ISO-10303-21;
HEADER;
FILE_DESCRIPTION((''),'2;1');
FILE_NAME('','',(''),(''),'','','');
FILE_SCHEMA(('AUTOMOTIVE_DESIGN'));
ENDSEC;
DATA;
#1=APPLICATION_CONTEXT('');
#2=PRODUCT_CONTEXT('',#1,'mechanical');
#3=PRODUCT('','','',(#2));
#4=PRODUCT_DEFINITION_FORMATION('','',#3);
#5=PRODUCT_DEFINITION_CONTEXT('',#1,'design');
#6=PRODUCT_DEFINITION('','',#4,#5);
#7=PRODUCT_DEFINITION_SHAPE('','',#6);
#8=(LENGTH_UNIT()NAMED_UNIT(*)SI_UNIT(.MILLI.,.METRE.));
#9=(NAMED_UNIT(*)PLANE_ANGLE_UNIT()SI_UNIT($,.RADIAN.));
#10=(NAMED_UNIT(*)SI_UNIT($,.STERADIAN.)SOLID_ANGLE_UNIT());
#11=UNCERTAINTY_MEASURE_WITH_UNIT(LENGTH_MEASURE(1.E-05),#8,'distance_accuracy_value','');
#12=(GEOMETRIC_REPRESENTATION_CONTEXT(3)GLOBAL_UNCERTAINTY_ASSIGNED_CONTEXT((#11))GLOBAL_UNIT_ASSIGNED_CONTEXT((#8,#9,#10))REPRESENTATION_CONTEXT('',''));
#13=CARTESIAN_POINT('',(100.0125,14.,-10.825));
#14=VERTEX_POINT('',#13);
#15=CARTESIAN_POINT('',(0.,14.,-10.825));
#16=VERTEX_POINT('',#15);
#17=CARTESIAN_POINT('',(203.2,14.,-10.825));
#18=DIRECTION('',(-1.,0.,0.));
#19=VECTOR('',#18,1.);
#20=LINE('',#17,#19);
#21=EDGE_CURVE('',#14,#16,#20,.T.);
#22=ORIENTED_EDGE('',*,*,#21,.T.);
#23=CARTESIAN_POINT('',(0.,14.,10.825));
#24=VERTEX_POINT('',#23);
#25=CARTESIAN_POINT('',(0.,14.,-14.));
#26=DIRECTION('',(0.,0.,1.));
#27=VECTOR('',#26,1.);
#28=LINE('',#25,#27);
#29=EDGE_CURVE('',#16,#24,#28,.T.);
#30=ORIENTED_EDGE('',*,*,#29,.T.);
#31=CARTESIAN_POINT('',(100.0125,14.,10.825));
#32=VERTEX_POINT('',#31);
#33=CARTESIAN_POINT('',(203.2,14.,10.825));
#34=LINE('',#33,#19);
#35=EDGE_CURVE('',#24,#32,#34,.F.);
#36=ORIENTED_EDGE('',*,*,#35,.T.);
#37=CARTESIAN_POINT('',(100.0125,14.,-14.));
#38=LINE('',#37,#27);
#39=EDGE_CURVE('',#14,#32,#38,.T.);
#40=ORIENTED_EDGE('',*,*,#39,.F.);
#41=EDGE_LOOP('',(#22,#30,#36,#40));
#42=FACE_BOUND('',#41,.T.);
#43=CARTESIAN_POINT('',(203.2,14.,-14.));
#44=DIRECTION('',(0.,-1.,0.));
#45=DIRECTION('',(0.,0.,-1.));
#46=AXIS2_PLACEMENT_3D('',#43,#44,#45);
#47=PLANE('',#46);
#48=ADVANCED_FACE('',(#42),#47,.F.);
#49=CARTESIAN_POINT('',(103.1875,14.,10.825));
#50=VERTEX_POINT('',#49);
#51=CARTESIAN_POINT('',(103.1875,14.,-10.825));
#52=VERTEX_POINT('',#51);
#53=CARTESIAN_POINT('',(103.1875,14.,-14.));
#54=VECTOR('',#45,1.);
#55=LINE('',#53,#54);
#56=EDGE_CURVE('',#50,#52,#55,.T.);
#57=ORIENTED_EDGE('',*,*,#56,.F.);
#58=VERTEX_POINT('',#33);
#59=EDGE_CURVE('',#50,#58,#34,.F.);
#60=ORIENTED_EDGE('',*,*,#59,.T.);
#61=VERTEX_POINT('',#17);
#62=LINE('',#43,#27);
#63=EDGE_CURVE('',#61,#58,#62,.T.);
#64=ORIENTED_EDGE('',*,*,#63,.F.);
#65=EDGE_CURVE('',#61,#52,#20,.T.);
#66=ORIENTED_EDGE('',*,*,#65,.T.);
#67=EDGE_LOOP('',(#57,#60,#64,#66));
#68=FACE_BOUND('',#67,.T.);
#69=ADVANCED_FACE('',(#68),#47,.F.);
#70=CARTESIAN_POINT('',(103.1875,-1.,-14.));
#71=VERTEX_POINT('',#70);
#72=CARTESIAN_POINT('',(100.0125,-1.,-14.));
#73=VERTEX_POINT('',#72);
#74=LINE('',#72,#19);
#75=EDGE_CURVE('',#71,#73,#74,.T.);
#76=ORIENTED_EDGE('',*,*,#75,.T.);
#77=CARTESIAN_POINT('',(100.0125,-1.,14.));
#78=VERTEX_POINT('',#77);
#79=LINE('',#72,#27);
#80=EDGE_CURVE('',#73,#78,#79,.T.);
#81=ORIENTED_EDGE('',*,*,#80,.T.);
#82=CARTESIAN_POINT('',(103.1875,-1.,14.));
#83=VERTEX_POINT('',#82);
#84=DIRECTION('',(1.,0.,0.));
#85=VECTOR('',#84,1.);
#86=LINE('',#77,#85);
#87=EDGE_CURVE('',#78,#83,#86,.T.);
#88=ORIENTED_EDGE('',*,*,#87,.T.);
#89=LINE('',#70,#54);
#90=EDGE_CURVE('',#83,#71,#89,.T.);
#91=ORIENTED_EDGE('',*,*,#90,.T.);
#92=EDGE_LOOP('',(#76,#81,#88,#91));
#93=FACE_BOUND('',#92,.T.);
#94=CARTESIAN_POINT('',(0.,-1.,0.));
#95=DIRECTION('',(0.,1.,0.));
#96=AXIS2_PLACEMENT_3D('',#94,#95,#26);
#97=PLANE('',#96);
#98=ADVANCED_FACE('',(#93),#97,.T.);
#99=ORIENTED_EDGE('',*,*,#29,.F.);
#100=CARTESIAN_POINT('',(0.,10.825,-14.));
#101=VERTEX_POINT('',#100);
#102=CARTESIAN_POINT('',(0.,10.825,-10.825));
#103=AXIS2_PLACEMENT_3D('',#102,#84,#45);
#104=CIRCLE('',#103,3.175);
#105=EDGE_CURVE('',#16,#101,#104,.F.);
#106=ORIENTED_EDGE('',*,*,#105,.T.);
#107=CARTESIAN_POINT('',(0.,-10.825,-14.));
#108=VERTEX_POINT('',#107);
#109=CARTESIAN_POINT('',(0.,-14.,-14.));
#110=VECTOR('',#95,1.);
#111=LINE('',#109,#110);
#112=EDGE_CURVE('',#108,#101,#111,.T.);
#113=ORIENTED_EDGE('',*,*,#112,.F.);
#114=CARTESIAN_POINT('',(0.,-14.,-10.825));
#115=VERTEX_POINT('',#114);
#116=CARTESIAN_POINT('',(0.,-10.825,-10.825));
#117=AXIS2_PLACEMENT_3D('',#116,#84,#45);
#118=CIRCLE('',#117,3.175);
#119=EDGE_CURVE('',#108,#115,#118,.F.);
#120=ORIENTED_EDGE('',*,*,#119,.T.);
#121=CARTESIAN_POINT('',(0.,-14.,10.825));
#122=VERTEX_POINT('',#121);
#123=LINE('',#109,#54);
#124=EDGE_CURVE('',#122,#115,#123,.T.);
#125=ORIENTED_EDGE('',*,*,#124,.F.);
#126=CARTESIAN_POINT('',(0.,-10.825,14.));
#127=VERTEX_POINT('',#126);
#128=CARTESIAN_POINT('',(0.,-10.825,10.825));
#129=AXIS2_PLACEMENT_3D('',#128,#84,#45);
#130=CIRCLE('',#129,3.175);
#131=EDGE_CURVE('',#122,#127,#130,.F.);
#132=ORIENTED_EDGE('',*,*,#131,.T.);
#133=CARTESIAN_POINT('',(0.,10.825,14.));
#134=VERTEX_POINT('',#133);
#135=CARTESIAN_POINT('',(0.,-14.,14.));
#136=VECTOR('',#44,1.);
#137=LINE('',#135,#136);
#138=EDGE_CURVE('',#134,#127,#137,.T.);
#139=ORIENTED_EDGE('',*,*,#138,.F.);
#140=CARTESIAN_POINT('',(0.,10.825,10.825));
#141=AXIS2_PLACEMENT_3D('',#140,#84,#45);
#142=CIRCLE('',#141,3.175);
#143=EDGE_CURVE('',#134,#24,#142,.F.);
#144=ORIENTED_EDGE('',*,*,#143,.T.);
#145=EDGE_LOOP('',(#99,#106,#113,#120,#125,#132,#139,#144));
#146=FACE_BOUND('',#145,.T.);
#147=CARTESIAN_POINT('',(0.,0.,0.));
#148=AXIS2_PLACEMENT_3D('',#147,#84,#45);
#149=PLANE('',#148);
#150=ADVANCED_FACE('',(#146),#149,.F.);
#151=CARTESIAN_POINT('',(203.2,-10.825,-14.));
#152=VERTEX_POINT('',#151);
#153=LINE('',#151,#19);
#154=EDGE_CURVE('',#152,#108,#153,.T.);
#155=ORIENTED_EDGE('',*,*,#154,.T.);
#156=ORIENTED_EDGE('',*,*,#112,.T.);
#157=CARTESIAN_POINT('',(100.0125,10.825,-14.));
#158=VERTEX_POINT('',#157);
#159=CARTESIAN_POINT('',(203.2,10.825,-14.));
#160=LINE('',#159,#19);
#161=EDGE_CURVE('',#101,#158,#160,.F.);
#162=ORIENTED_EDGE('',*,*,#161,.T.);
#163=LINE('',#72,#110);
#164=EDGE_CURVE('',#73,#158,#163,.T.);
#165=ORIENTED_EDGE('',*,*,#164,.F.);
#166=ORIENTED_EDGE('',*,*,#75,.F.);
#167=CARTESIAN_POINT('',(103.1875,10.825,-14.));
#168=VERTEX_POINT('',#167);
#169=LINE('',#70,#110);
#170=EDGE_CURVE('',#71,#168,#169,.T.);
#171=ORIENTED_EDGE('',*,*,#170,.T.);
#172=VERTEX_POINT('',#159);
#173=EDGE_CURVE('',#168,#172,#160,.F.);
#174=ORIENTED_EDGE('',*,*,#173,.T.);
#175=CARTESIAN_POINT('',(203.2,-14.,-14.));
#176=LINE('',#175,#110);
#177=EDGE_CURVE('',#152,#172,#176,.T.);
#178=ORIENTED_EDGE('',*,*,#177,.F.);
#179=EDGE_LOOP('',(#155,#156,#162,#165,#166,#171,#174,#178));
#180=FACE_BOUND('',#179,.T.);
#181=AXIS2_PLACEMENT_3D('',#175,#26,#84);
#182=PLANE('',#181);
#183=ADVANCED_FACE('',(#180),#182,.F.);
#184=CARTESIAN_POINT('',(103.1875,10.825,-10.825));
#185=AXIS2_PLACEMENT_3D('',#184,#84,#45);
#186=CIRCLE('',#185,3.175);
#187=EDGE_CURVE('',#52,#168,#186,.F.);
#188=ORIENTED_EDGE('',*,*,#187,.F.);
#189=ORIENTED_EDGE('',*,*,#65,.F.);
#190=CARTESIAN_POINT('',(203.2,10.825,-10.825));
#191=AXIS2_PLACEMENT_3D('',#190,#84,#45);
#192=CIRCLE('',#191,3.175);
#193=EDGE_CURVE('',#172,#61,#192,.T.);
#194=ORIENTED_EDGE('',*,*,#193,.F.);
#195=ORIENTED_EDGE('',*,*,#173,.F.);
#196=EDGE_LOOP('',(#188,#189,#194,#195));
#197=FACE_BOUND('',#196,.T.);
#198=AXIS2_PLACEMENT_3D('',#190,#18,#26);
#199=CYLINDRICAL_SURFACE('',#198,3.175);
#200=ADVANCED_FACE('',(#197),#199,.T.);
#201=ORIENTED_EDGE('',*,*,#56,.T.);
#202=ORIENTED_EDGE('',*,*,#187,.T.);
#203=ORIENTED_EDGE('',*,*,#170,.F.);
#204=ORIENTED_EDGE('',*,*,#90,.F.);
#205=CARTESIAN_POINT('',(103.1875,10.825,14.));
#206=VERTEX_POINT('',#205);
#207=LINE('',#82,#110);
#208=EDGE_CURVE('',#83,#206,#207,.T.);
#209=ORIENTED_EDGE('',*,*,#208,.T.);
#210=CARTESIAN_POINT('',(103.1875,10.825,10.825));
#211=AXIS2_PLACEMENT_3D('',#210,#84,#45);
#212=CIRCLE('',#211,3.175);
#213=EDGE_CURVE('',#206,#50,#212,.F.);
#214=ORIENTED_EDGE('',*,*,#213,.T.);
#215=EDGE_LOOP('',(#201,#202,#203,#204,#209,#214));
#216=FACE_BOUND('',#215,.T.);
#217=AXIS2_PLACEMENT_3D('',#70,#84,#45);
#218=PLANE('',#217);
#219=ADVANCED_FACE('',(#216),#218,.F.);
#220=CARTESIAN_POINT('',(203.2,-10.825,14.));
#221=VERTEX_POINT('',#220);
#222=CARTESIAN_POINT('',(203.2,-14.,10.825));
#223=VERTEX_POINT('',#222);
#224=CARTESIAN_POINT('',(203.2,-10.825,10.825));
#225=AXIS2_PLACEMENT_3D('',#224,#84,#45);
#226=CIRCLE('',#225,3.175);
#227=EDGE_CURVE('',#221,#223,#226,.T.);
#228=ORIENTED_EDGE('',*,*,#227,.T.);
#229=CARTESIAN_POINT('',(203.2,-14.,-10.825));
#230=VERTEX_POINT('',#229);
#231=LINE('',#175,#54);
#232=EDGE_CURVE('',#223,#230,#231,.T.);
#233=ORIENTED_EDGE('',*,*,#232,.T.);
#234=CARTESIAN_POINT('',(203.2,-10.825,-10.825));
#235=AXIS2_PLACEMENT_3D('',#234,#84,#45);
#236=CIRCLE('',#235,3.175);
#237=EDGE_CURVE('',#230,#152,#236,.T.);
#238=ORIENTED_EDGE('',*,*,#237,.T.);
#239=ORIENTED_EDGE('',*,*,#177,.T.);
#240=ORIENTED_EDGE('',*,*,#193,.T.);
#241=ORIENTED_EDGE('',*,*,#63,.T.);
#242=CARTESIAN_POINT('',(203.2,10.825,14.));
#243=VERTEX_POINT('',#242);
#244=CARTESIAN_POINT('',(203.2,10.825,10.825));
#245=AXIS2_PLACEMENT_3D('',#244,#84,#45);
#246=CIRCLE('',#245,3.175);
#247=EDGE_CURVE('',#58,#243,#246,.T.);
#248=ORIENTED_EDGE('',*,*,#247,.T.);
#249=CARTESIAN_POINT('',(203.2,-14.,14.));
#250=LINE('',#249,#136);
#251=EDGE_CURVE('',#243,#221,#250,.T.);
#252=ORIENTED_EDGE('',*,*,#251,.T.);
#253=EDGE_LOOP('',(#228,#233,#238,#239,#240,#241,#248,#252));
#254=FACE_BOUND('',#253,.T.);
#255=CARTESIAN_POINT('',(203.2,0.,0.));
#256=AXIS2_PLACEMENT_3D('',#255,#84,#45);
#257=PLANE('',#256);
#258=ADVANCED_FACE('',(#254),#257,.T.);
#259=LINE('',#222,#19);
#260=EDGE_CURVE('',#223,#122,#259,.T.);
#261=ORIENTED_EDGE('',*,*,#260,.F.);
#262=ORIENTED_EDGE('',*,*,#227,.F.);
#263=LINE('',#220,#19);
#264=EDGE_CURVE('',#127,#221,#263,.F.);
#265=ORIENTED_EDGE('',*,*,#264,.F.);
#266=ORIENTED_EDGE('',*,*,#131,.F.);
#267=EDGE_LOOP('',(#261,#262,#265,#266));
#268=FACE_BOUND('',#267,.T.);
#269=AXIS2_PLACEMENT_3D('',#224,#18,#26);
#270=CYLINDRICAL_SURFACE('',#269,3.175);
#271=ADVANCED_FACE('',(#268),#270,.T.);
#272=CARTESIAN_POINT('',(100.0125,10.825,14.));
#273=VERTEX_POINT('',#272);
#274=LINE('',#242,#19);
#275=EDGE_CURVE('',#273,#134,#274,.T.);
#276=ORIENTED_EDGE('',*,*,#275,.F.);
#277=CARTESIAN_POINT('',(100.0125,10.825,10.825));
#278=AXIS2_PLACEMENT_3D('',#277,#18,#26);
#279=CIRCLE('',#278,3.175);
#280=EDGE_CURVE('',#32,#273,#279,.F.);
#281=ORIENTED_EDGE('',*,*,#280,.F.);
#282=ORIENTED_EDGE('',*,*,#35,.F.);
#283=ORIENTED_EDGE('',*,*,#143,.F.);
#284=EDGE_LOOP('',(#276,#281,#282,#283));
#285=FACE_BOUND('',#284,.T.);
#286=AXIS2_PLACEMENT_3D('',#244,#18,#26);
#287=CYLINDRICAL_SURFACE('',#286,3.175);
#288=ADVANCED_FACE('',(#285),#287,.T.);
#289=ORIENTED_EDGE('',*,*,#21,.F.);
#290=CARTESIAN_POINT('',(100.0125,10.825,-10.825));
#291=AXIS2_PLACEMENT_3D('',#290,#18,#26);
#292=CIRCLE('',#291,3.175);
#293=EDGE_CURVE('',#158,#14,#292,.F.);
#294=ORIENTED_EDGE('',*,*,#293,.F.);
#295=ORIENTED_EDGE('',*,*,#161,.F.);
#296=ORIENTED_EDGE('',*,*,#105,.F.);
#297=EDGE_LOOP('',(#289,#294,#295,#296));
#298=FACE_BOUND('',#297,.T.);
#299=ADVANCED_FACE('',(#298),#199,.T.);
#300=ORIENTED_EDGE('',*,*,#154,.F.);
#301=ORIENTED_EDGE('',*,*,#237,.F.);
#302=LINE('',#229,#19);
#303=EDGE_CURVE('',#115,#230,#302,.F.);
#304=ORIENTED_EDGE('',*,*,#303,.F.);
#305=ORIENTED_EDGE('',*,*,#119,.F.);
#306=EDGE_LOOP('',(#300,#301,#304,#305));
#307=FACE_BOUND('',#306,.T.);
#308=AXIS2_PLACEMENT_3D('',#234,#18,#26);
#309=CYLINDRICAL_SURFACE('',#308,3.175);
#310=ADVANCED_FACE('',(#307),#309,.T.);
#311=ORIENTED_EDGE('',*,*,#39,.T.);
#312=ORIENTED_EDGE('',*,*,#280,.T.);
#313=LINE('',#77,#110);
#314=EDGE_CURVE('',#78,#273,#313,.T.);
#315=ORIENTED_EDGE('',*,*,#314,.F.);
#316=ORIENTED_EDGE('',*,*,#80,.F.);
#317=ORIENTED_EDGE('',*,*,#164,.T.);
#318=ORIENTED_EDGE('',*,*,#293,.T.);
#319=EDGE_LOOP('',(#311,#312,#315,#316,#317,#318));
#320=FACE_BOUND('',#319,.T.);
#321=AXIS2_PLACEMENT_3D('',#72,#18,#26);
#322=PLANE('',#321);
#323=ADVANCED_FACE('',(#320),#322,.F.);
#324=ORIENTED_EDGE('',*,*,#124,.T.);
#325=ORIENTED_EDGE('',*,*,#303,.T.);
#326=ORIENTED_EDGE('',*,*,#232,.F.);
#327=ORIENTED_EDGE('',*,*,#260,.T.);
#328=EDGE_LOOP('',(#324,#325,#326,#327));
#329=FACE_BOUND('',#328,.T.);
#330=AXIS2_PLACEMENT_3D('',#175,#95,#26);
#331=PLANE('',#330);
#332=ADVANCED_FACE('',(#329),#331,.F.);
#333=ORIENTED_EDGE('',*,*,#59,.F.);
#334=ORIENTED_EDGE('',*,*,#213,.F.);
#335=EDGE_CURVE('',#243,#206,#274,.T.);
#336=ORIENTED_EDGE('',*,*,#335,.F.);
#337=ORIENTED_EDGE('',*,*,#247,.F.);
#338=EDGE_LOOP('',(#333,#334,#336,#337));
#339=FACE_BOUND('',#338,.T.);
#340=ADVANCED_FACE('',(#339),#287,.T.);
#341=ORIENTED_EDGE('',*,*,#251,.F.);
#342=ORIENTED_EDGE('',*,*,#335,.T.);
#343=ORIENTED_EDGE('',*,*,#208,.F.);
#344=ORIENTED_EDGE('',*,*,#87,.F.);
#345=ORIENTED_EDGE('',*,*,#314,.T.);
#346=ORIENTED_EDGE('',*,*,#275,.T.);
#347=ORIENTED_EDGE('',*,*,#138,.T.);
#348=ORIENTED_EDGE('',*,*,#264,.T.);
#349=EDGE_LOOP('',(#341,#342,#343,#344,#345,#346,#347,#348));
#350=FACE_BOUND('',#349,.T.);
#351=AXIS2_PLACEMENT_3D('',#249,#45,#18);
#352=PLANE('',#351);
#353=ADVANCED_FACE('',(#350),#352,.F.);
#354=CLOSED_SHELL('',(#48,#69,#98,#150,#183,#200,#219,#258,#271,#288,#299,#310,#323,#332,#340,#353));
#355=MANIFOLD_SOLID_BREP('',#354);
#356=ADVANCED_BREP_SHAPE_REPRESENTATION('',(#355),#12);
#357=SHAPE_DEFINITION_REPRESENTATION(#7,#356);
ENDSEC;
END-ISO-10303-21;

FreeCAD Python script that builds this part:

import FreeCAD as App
import Part
import Sketcher


def edges_at(feature, points):
    """Names of the edges that pass closest to the given points."""
    edges = feature.Shape.Edges
    near = lambda p: min(range(len(edges)), key=lambda i: edges[i].distToShape(Part.Vertex(*p))[0])
    return sorted({f"Edge{near(p) + 1}" for p in points})


def add_polygon(sketch, points):
    """Adds a closed chain of lines whose ends are joined by coincident constraints."""
    first, n = sketch.GeometryCount, len(points)
    for a, b in zip(points, points[1:] + points[:1]):
        sketch.addGeometry(Part.LineSegment(App.Vector(*a, 0), App.Vector(*b, 0)), False)
    for i in range(n):
        sketch.addConstraint(Sketcher.Constraint("Coincident", first + i, 2, first + (i + 1) % n, 1))

doc = App.newDocument("Part")
body = doc.addObject("PartDesign::Body", "Body")

sketch1 = body.newObject("Sketcher::SketchObject", "Sketch")
sketch1.AttachmentSupport = (doc.getObject("YZ_Plane"), [""])
sketch1.MapMode = "FlatFace"
add_polygon(sketch1, [(14, 14), (-14, 14), (-14, -14), (14, -14)])
sketch1.addConstraint([
    Sketcher.Constraint("Horizontal", 0),
    Sketcher.Constraint("Vertical", 1),
    Sketcher.Constraint("Horizontal", 2),
    Sketcher.Constraint("Vertical", 3),
    Sketcher.Constraint("Symmetric", 0, 2, 2, 2, -1, 1),
    Sketcher.Constraint("Equal", 2, 1),
    Sketcher.Constraint("DistanceX", 0, 2, 0, 1, 28.0),
])
pad1 = body.newObject("PartDesign::Pad", "Pad")
pad1.Profile = sketch1
pad1.Length = 203.2

sketch2 = body.newObject("Sketcher::SketchObject", "Sketch001")
sketch2.AttachmentSupport = (doc.getObject("XZ_Plane"), [""])
sketch2.MapMode = "FlatFace"
sketch2.AttachmentOffset = App.Placement(App.Vector(0, 0, -14), App.Rotation())
add_polygon(sketch2, [(100, -14), (100, 14), (103.2, 14), (103.2, -14)])
sketch2.addConstraint([
    Sketcher.Constraint("Vertical", 0),
    Sketcher.Constraint("Horizontal", 1),
    Sketcher.Constraint("Vertical", 2),
    Sketcher.Constraint("Horizontal", 3),
    Sketcher.Constraint("DistanceY", 0, 1, 0, 2, 28.0),
    Sketcher.Constraint("DistanceY", -1, 1, 0, 2, 14.0),
    Sketcher.Constraint("DistanceX", 1, 1, 1, 2, 3.175),
    Sketcher.Constraint("DistanceX", -1, 1, 0, 2, 100.0125),
])
pocket1 = body.newObject("PartDesign::Pocket", "Pocket")
pocket1.Profile = sketch2
pocket1.Length = 15
pocket1.Reversed = True
doc.recompute()

fillet = body.newObject("PartDesign::Fillet", "Fillet")
fillet.Base = (pocket1, edges_at(pocket1, [
    (50.006, 14, 14),
    (50.006, 14, -14),
    (153.194, 14, 14),
    (153.194, 14, -14),
    (101.6, -14, -14),
    (101.6, -14, 14),
]))
fillet.Radius = 3.175

doc.recompute()
